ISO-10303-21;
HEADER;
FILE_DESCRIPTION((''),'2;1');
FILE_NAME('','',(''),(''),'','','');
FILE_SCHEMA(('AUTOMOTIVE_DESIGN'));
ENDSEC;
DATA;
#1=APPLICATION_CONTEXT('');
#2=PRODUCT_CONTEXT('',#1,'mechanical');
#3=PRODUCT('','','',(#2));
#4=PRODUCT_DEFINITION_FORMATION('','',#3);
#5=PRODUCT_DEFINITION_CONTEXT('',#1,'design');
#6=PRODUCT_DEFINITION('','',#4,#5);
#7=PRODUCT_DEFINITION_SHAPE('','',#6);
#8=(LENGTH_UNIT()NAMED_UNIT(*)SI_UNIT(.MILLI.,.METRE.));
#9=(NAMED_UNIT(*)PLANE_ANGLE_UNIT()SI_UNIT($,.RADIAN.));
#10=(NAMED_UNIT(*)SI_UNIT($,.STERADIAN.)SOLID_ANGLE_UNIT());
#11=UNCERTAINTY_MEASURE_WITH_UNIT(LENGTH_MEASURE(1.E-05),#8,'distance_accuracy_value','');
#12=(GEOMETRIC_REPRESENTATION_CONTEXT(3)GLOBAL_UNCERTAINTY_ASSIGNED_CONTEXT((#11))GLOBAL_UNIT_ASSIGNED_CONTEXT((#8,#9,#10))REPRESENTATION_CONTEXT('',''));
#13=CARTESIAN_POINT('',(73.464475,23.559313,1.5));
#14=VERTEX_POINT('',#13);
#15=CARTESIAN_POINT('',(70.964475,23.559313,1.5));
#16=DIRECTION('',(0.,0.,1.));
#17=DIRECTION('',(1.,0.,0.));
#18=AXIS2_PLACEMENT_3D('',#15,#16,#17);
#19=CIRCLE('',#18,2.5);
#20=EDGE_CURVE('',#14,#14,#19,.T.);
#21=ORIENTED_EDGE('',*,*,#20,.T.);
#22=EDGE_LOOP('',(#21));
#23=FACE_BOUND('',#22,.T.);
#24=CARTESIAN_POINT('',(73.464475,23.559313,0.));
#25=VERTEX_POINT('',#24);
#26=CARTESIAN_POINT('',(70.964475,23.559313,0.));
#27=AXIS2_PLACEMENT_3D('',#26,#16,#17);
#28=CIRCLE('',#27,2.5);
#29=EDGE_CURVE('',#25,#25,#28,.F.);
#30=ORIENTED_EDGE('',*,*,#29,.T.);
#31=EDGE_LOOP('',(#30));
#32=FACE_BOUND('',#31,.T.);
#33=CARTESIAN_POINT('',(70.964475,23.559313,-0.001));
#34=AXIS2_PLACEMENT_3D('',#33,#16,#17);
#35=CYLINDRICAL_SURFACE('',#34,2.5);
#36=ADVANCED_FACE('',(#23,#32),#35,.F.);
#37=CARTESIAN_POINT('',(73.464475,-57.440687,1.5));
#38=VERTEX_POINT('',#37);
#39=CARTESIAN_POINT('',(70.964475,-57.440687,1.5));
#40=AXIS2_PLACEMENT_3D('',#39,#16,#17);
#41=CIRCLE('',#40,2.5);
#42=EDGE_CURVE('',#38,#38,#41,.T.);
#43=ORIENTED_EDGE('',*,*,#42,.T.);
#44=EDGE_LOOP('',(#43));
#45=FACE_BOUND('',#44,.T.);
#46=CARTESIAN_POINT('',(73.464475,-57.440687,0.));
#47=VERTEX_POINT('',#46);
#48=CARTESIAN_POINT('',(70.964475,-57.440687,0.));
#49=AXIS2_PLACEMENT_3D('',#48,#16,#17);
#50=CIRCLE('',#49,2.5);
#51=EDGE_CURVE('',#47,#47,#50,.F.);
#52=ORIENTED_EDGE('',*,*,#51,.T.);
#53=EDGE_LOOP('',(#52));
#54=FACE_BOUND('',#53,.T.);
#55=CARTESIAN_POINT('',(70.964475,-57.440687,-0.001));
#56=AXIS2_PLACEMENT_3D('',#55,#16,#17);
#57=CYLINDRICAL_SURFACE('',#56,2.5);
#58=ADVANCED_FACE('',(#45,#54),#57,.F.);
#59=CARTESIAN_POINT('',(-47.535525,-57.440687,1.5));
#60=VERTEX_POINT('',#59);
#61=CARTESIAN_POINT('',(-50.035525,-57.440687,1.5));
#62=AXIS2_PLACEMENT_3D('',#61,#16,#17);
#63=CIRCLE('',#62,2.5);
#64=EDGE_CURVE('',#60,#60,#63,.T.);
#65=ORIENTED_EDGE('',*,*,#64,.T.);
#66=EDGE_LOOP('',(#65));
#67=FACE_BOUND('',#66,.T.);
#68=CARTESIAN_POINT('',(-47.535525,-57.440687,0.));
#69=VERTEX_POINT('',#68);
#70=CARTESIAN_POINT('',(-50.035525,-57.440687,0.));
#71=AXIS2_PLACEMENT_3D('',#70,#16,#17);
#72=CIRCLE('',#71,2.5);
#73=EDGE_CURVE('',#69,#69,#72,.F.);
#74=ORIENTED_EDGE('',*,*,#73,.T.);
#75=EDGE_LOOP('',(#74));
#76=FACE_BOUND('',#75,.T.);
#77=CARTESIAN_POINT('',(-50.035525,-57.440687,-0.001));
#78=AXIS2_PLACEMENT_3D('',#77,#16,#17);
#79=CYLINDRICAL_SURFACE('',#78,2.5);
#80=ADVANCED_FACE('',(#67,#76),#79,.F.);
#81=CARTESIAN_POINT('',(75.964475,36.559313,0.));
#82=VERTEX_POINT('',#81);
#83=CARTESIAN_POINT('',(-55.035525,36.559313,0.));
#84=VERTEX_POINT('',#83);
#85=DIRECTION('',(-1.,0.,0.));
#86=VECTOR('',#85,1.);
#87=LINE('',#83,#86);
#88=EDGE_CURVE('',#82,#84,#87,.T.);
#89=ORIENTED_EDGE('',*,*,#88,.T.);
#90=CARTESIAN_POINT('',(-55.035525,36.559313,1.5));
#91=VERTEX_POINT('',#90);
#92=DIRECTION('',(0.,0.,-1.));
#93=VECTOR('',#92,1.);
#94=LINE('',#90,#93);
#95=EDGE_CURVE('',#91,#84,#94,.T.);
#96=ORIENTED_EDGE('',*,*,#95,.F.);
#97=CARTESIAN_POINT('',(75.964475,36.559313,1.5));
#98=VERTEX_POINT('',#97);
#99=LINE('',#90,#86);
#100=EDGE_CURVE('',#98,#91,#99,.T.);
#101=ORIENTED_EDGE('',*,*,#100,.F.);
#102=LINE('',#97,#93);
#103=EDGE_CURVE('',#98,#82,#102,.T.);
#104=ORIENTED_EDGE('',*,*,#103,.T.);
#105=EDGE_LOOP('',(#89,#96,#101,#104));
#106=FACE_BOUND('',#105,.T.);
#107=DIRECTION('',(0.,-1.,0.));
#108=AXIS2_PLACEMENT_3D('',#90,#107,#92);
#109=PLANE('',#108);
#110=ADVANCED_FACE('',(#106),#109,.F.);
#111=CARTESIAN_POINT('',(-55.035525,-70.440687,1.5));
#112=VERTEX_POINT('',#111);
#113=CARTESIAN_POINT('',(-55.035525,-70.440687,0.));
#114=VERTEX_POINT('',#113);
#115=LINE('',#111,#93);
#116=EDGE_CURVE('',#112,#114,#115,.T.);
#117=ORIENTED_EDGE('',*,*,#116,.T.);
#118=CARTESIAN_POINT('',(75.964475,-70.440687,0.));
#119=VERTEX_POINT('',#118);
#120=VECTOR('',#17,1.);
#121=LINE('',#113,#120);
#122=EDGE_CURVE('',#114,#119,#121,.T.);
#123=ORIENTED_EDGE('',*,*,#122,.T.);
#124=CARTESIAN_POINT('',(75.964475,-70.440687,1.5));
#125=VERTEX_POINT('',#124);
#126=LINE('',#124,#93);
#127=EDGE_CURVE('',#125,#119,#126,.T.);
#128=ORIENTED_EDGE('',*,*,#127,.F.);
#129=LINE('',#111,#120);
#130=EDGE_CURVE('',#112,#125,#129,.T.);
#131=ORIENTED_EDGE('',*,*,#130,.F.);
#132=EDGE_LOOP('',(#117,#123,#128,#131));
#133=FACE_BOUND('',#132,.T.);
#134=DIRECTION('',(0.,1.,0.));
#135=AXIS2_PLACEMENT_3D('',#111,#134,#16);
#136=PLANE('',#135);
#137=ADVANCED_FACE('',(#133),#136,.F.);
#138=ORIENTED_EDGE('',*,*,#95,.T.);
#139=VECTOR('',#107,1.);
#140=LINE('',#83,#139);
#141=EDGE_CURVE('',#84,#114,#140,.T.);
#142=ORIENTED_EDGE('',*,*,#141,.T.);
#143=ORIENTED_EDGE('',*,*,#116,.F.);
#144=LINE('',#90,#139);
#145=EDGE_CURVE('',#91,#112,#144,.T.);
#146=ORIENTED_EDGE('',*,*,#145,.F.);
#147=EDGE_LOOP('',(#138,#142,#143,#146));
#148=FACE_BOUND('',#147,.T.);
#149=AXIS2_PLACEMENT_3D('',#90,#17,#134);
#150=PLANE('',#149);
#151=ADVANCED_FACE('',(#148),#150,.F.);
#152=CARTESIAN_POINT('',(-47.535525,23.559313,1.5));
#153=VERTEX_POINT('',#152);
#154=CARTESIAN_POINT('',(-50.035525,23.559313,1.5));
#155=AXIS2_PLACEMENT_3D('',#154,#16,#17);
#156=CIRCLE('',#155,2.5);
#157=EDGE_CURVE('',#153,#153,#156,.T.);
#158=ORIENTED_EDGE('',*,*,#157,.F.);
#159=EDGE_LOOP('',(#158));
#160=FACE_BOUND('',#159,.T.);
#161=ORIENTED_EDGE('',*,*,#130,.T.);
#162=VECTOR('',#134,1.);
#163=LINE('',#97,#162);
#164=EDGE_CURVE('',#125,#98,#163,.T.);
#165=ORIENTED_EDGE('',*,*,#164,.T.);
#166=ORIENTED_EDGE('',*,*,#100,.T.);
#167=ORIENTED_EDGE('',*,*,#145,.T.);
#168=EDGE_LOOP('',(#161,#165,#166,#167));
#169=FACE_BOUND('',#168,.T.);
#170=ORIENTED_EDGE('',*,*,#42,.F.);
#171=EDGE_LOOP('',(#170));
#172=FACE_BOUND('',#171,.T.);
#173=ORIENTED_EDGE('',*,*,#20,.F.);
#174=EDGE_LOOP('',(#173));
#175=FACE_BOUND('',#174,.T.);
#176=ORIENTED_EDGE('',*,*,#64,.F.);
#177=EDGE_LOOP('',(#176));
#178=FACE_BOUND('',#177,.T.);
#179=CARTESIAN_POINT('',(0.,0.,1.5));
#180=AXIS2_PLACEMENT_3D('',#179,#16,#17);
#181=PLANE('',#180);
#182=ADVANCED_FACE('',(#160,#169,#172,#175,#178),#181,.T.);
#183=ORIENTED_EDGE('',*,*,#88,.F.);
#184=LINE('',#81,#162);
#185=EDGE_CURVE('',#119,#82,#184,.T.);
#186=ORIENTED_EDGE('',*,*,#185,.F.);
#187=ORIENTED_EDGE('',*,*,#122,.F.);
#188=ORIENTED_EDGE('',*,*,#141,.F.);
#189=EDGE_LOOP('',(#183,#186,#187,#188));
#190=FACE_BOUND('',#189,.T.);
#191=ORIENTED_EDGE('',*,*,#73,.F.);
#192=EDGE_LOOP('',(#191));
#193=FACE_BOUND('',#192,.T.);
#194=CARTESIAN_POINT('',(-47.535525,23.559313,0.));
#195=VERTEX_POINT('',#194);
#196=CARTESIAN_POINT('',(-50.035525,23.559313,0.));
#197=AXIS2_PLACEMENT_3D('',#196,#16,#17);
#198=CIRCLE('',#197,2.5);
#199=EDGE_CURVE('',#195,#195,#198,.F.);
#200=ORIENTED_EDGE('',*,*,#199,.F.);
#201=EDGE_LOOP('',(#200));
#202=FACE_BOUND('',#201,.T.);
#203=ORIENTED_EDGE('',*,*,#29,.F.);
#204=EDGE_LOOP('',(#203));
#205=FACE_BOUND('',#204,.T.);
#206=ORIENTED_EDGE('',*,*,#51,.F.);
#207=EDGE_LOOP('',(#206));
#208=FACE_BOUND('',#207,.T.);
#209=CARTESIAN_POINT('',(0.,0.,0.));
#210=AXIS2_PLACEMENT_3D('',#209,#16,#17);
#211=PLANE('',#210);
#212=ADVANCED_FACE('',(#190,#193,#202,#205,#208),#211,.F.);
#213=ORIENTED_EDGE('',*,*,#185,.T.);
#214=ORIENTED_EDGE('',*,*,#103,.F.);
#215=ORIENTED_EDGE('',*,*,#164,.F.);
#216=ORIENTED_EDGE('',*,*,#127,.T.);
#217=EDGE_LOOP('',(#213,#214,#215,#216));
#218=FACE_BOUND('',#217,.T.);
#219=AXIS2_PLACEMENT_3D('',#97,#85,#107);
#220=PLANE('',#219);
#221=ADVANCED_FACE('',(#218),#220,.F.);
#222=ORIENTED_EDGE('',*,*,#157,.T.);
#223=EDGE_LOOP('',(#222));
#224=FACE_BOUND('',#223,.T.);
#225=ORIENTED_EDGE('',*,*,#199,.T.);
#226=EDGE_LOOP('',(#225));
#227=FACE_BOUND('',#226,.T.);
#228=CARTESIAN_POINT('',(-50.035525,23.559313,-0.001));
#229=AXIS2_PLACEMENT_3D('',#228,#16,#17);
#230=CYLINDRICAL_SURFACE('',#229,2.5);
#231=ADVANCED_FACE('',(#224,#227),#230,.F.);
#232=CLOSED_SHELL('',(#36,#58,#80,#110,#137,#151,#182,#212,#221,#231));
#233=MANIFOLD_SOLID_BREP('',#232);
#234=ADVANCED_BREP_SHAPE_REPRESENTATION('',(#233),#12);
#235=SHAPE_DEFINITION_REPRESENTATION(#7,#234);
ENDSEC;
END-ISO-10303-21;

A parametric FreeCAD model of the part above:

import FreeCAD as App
import Part
import Sketcher
Q = App.Units.Quantity


def add_polygon(sketch, points):
    """Adds a closed chain of lines whose ends are joined by coincident constraints."""
    first, n = sketch.GeometryCount, len(points)
    for a, b in zip(points, points[1:] + points[:1]):
        sketch.addGeometry(Part.LineSegment(App.Vector(*a, 0), App.Vector(*b, 0)), False)
    for i in range(n):
        sketch.addConstraint(Sketcher.Constraint("Coincident", first + i, 2, first + (i + 1) % n, 1))

doc = App.newDocument("Part")
body = doc.addObject("PartDesign::Body", "Body")

sketch1 = doc.addObject("Sketcher::SketchObject", "Sketch")
body.addObject(sketch1)
sketch1.AttachmentSupport = (doc.XY_Plane, [""])
sketch1.MapMode = "FlatFace"
add_polygon(sketch1, [(-55, 37), (-55, -70), (76, -70), (76, 37)])
sketch1.addConstraint(Sketcher.Constraint("Vertical", 0))
sketch1.addConstraint(Sketcher.Constraint("Horizontal", 1))
sketch1.addConstraint(Sketcher.Constraint("Vertical", 2))
sketch1.addConstraint(Sketcher.Constraint("Horizontal", 3))
sketch1.addConstraint(Sketcher.Constraint("DistanceX", 1, 1, 1, 2, Q("131 mm")))
sketch1.addConstraint(Sketcher.Constraint("DistanceY", 0, 2, 0, 1, Q("107 mm")))
sketch1.addConstraint(Sketcher.Constraint("DistanceX", 0, 2, -1, 1, Q("55.035525 mm")))
sketch1.addConstraint(Sketcher.Constraint("DistanceY", 0, 2, -1, 1, Q("70.440687 mm")))
pad1 = doc.addObject("PartDesign::Pad", "Pad")
body.addObject(pad1)
pad1.Profile = sketch1
pad1.Length = 1.5

sketch2 = doc.addObject("Sketcher::SketchObject", "Sketch001")
body.addObject(sketch2)
sketch2.AttachmentSupport = (doc.XY_Plane, [""])
sketch2.MapMode = "FlatFace"
sketch2.AttachmentOffset = App.Placement(App.Vector(0, 0, 1.5), App.Rotation())
sketch2.addGeometry(Part.Circle(App.Vector(-50, 23.6, 0), App.Vector(0, 0, 1), 2.5), False)
sketch2.addConstraint(Sketcher.Constraint("Diameter", 0, Q("5 mm")))
sketch2.addConstraint(Sketcher.Constraint("DistanceX", 0, 3, -1, 1, Q("50.035525 mm")))
sketch2.addConstraint(Sketcher.Constraint("DistanceY", -1, 1, 0, 3, Q("23.559313 mm")))
pocket1 = doc.addObject("PartDesign::Pocket", "Pocket")
body.addObject(pocket1)
pocket1.Profile = sketch2
pocket1.Type = "UpToFirst"

sketch3 = doc.addObject("Sketcher::SketchObject", "Sketch002")
body.addObject(sketch3)
sketch3.AttachmentSupport = (doc.XY_Plane, [""])
sketch3.MapMode = "FlatFace"
sketch3.AttachmentOffset = App.Placement(App.Vector(0, 0, 1.5), App.Rotation())
sketch3.addGeometry(Part.Circle(App.Vector(71, 23.6, 0), App.Vector(0, 0, 1), 2.5), False)
sketch3.addConstraint(Sketcher.Constraint("Diameter", 0, Q("5 mm")))
sketch3.addConstraint(Sketcher.Constraint("DistanceX", -1, 1, 0, 3, Q("70.964475 mm")))
sketch3.addConstraint(Sketcher.Constraint("DistanceY", -1, 1, 0, 3, Q("23.559313 mm")))
pocket2 = doc.addObject("PartDesign::Pocket", "Pocket001")
body.addObject(pocket2)
pocket2.Profile = sketch3
pocket2.Type = "UpToFirst"

sketch4 = doc.addObject("Sketcher::SketchObject", "Sketch003")
body.addObject(sketch4)
sketch4.AttachmentSupport = (doc.XY_Plane, [""])
sketch4.MapMode = "FlatFace"
sketch4.AttachmentOffset = App.Placement(App.Vector(0, 0, 1.5), App.Rotation())
sketch4.addGeometry(Part.Circle(App.Vector(71, -57.4, 0), App.Vector(0, 0, 1), 2.5), False)
sketch4.addConstraint(Sketcher.Constraint("Diameter", 0, Q("5 mm")))
sketch4.addConstraint(Sketcher.Constraint("DistanceX", -1, 1, 0, 3, Q("70.964475 mm")))
sketch4.addConstraint(Sketcher.Constraint("DistanceY", 0, 3, -1, 1, Q("57.440687 mm")))
pocket3 = doc.addObject("PartDesign::Pocket", "Pocket002")
body.addObject(pocket3)
pocket3.Profile = sketch4
pocket3.Type = "UpToFirst"

sketch5 = doc.addObject("Sketcher::SketchObject", "Sketch004")
body.addObject(sketch5)
sketch5.AttachmentSupport = (doc.XY_Plane, [""])
sketch5.MapMode = "FlatFace"
sketch5.AttachmentOffset = App.Placement(App.Vector(0, 0, 1.5), App.Rotation())
sketch5.addGeometry(Part.Circle(App.Vector(-50, -57.4, 0), App.Vector(0, 0, 1), 2.5), False)
sketch5.addConstraint(Sketcher.Constraint("Diameter", 0, Q("5 mm")))
sketch5.addConstraint(Sketcher.Constraint("DistanceX", 0, 3, -1, 1, Q("50.035525 mm")))
sketch5.addConstraint(Sketcher.Constraint("DistanceY", 0, 3, -1, 1, Q("57.440687 mm")))
pocket4 = doc.addObject("PartDesign::Pocket", "Pocket003")
body.addObject(pocket4)
pocket4.Profile = sketch5
pocket4.Type = "UpToFirst"

doc.recompute()
